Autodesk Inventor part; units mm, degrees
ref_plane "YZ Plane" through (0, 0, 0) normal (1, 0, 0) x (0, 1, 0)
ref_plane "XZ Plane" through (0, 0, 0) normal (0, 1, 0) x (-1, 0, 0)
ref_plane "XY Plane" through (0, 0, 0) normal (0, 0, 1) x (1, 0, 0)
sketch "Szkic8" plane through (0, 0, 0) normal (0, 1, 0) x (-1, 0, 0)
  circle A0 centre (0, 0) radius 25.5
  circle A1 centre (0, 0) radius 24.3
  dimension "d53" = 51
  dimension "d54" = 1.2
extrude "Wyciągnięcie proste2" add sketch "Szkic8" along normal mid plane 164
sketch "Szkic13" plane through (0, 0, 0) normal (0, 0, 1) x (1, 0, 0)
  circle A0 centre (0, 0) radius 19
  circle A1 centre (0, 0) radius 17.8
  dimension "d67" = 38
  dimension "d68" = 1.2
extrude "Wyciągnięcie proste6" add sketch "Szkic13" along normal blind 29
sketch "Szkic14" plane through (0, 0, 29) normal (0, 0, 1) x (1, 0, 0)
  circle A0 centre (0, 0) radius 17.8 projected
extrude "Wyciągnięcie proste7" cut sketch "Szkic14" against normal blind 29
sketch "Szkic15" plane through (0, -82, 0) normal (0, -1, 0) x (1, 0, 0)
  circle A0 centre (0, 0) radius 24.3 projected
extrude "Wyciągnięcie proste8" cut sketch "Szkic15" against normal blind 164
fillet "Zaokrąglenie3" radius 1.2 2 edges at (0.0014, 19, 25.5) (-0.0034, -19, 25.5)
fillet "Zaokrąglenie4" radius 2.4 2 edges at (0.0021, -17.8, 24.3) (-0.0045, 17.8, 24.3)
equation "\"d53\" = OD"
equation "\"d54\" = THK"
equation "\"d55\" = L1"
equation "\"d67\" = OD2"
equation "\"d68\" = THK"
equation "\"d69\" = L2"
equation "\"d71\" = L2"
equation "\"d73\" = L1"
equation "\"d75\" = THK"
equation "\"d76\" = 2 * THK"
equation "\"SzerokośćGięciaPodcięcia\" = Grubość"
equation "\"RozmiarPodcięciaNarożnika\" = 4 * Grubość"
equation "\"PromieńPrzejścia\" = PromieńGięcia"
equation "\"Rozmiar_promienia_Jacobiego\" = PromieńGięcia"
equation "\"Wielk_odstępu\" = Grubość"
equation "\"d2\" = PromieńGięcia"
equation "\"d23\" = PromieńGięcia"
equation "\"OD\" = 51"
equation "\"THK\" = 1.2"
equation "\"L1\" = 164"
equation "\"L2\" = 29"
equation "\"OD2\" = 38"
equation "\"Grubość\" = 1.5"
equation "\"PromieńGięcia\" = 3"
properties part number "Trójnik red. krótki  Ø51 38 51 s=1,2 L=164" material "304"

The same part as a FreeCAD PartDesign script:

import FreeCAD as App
import Part
import Sketcher
from FreeCAD import Vector
Q = App.Units.Quantity


def edges_at(feature, points):
    """Names of the edges that pass closest to the given points."""
    edges = feature.Shape.Edges
    near = lambda p: min(range(len(edges)), key=lambda i: edges[i].distToShape(Part.Vertex(*p))[0])
    return sorted({f"Edge{near(p) + 1}" for p in points})

doc = App.newDocument("Part")
body = doc.addObject("PartDesign::Body", "Body")

# Sketch on XZ plane
sketch1 = body.newObject("Sketcher::SketchObject", "Sketch")
sketch1.AttachmentSupport = (doc.getObject("XZ_Plane"), [""])
sketch1.MapMode = "FlatFace"
sketch1.addGeometry([
    Part.Circle(Vector(0, 0, 0), Vector(0, 0, 1), 26),
    Part.Circle(Vector(0, 0, 0), Vector(0, 0, 1), 24),
], False)
sketch1.addConstraint([
    Sketcher.Constraint("Coincident", 0, 3, -1, 1),
    Sketcher.Constraint("Coincident", 1, 3, -1, 1),
    Sketcher.Constraint("Diameter", 0, Q("51 mm")),
    Sketcher.Constraint("Diameter", 1, Q("48.6 mm")),
])
pad1 = body.newObject("PartDesign::Pad", "Pad")
pad1.Profile = sketch1
pad1.Length = 164
pad1.Midplane = True

# Sketch on XY plane
sketch2 = body.newObject("Sketcher::SketchObject", "Sketch001")
sketch2.AttachmentSupport = (doc.getObject("XY_Plane"), [""])
sketch2.MapMode = "FlatFace"
sketch2.addGeometry([
    Part.Circle(Vector(0, 0, 0), Vector(0, 0, 1), 19),
    Part.Circle(Vector(0, 0, 0), Vector(0, 0, 1), 18),
], False)
sketch2.addConstraint([
    Sketcher.Constraint("Coincident", 0, 3, -1, 1),
    Sketcher.Constraint("Coincident", 1, 3, -1, 1),
    Sketcher.Constraint("Diameter", 0, Q("38 mm")),
    Sketcher.Constraint("Diameter", 1, Q("35.6 mm")),
])
pad2 = body.newObject("PartDesign::Pad", "Pad001")
pad2.Profile = sketch2
pad2.Length = 29

# Sketch on XY plane
sketch3 = body.newObject("Sketcher::SketchObject", "Sketch002")
sketch3.AttachmentSupport = (doc.getObject("XY_Plane"), [""])
sketch3.MapMode = "FlatFace"
sketch3.AttachmentOffset = App.Placement(Vector(0, 0, 29), App.Rotation())
sketch3.addGeometry(Part.Circle(Vector(0, 0, 0), Vector(0, 0, 1), 18), False)
sketch3.addConstraint([
    Sketcher.Constraint("Coincident", 0, 3, -1, 1),
    Sketcher.Constraint("Diameter", 0, Q("35.6 mm")),
])
pocket1 = body.newObject("PartDesign::Pocket", "Pocket")
pocket1.Profile = sketch3
pocket1.Length = 29

# Sketch on XZ plane
sketch4 = body.newObject("Sketcher::SketchObject", "Sketch003")
sketch4.AttachmentSupport = (doc.getObject("XZ_Plane"), [""])
sketch4.MapMode = "FlatFace"
sketch4.AttachmentOffset = App.Placement(Vector(0, 0, 82), App.Rotation())
sketch4.addGeometry(Part.Circle(Vector(0, 0, 0), Vector(0, 0, 1), 24), False)
sketch4.addConstraint([
    Sketcher.Constraint("Coincident", 0, 3, -1, 1),
    Sketcher.Constraint("Diameter", 0, Q("48.6 mm")),
])
pocket2 = body.newObject("PartDesign::Pocket", "Pocket001")
pocket2.Profile = sketch4
pocket2.Length = 164
doc.recompute()

fillet = body.newObject("PartDesign::Fillet", "Fillet")
fillet.Base = (pocket2, edges_at(pocket2, [(0.001, 19, 25.5), (-0.003, -19, 25.5)]))
fillet.Radius = 1.2
doc.recompute()

fillet2 = body.newObject("PartDesign::Fillet", "Fillet001")
fillet2.Base = (fillet, edges_at(fillet, [(0.002, -17.8, 24.3), (-0.004, 17.8, 24.3)]))
fillet2.Radius = 2.4

doc.recompute()
